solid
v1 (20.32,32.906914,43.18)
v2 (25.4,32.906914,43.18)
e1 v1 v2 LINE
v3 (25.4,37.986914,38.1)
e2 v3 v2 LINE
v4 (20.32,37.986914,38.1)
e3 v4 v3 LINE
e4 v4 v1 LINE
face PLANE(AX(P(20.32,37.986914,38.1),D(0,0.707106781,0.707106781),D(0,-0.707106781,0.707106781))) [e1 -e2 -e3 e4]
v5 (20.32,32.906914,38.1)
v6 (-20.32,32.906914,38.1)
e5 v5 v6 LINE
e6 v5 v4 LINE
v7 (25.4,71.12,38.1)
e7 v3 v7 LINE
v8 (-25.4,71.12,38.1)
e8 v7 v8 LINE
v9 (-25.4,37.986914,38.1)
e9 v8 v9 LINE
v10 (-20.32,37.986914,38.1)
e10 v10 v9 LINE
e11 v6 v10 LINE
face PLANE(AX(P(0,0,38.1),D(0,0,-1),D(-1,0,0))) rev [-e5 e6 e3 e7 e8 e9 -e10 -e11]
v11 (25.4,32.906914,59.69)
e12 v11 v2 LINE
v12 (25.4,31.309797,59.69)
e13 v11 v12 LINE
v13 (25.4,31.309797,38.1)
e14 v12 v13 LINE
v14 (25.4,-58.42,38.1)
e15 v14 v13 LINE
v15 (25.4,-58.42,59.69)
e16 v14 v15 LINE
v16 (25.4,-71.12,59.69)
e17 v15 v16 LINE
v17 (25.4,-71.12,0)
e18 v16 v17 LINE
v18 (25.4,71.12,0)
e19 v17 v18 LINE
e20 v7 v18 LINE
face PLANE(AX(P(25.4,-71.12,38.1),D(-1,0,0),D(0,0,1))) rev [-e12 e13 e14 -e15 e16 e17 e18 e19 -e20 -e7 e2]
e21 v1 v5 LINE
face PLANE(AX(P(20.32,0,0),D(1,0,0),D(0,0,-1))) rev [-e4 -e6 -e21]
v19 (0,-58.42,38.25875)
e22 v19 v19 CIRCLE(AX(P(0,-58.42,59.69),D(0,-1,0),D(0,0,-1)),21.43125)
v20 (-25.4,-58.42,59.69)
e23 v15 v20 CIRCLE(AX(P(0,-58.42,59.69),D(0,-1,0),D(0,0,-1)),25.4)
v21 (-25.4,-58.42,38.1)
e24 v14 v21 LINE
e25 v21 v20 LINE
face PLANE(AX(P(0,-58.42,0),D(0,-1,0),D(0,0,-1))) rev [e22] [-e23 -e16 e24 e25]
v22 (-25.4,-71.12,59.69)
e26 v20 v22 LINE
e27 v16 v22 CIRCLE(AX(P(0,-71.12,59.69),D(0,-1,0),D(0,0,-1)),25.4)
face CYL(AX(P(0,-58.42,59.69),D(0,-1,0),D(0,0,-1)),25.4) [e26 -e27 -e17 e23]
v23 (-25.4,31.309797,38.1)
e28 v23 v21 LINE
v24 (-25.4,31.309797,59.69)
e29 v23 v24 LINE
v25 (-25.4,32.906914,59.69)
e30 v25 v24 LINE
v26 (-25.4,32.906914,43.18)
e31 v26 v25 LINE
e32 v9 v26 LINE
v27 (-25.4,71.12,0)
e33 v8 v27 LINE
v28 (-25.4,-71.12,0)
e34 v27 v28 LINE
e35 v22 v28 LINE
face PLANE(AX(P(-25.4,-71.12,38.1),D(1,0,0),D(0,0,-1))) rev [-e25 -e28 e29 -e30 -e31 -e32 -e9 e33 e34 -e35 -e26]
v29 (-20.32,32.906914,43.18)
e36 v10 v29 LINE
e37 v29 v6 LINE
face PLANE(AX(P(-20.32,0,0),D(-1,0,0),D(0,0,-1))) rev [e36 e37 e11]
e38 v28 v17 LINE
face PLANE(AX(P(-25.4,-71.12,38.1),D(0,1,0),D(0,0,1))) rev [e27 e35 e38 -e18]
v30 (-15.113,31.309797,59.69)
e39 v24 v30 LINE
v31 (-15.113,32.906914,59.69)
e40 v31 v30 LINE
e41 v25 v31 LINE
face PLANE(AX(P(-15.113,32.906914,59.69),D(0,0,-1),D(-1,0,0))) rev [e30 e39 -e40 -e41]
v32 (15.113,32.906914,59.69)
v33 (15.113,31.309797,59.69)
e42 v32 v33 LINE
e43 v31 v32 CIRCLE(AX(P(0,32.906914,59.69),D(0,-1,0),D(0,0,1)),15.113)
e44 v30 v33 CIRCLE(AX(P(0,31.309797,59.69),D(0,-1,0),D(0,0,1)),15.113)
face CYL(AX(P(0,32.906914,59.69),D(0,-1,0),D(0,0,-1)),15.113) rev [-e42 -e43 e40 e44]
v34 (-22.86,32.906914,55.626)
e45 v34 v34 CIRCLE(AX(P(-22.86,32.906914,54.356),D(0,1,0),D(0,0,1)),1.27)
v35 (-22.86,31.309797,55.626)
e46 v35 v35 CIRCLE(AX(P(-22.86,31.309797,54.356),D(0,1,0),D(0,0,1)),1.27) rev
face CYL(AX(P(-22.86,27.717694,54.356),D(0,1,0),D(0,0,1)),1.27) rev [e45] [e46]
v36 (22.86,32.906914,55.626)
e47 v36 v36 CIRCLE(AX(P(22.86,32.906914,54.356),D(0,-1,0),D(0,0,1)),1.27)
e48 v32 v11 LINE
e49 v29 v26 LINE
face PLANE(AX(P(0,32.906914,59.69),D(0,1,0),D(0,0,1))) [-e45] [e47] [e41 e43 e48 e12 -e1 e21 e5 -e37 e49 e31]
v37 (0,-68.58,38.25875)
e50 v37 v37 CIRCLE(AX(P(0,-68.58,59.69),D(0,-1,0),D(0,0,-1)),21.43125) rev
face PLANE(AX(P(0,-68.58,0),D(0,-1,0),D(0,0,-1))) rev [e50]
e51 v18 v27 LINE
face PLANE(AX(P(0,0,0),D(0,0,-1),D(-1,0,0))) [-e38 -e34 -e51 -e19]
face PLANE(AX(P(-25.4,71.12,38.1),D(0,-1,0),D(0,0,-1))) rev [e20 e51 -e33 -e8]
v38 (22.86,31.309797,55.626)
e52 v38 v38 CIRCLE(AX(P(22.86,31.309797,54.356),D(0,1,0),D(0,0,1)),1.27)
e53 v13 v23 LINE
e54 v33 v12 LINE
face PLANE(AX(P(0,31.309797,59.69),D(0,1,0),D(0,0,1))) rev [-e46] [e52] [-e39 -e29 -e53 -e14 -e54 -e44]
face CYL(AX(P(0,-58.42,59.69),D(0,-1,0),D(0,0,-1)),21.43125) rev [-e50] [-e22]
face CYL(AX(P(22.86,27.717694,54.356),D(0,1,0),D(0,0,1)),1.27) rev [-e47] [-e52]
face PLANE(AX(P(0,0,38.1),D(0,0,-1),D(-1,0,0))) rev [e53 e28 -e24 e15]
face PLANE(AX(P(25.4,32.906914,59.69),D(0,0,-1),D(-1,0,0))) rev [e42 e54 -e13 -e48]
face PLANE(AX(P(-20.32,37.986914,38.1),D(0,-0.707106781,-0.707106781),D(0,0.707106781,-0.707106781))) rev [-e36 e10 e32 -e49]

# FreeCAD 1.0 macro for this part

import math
import FreeCAD as App
import Part
import Sketcher
from FreeCAD import Vector
Q = App.Units.Quantity

doc = App.newDocument("Part")
body = doc.addObject("PartDesign::Body", "Body")

sketch1 = body.newObject("Sketcher::SketchObject", "Sketch")
sketch1.AttachmentSupport = (doc.getObject("XY_Plane"), [""])
sketch1.MapMode = "FlatFace"
sketch1.addGeometry([
    Part.LineSegment(Vector(-25, 71, 0), Vector(-25, -71, 0)),
    Part.LineSegment(Vector(-25, -71, 0), Vector(25, -71, 0)),
    Part.LineSegment(Vector(25, -71, 0), Vector(25, 71, 0)),
    Part.LineSegment(Vector(25, 71, 0), Vector(-25, 71, 0)),
], False)
sketch1.addConstraint([
    Sketcher.Constraint("Coincident", 0, 2, 1, 1),
    Sketcher.Constraint("Coincident", 1, 2, 2, 1),
    Sketcher.Constraint("Coincident", 2, 2, 3, 1),
    Sketcher.Constraint("Coincident", 3, 2, 0, 1),
    Sketcher.Constraint("Vertical", 0),
    Sketcher.Constraint("Horizontal", 1),
    Sketcher.Constraint("Vertical", 2),
    Sketcher.Constraint("Horizontal", 3),
    Sketcher.Constraint("Symmetric", 0, 2, 2, 2, -1, 1),
    Sketcher.Constraint("DistanceX", 1, 1, 1, 2, Q("2 in")),
    Sketcher.Constraint("DistanceY", 0, 2, 0, 1, Q("5.6 in")),
])
pad1 = body.newObject("PartDesign::Pad", "Pad")
pad1.Profile = sketch1
pad1.Length = Q("1.5 in")
body2 = doc.addObject("PartDesign::Body", "Body001")

sketch2 = body2.newObject("Sketcher::SketchObject", "Sketch001")
sketch2.AttachmentSupport = (doc.getObject("XZ_Plane001"), [""])
sketch2.MapMode = "FlatFace"
sketch2.AttachmentOffset = App.Placement(Vector(0, 0, 2.8 * 25.4), App.Rotation())
sketch2.addGeometry([
    Part.LineSegment(Vector(-25, 38, 0), Vector(25, 38, 0)),
    Part.LineSegment(Vector(25, 38, 0), Vector(25, 60, 0)),
    Part.ArcOfCircle(Part.Circle(Vector(0, 60, 0), Vector(0, 0, 1), 25), math.radians(0), math.radians(180)),
    Part.LineSegment(Vector(-25, 60, 0), Vector(-25, 38, 0)),
], False)
sketch2.addConstraint([
    Sketcher.Constraint("Coincident", 0, 2, 1, 1),
    Sketcher.Constraint("Tangent", 1, 2, 2, 1),
    Sketcher.Constraint("Tangent", 2, 2, 3, 1),
    Sketcher.Constraint("Coincident", 3, 2, 0, 1),
    Sketcher.Constraint("Horizontal", 0),
    Sketcher.Constraint("Vertical", 1),
    Sketcher.Constraint("Vertical", 3),
    Sketcher.Constraint("PointOnObject", 2, 3, -2),
    Sketcher.Constraint("Radius", 2, Q("1 in")),
    Sketcher.Constraint("DistanceY", 1, 1, 1, 2, Q("0.85 in")),
    Sketcher.Constraint("DistanceY", -1, 1, 0, 2, Q("1.5 in")),
])
pad2 = body2.newObject("PartDesign::Pad", "Pad001")
pad2.Profile = sketch2
pad2.Length = Q("0.1 in")
pad2.Reversed = True
doc.recompute()

boolean = body.newObject("PartDesign::Boolean", "Boolean")
boolean.Type = "Fuse"
boolean.addObjects([body2])

sketch3 = body.newObject("Sketcher::SketchObject", "Sketch002")
sketch3.AttachmentSupport = (doc.getObject("XZ_Plane"), [""])
sketch3.MapMode = "FlatFace"
sketch3.AttachmentOffset = App.Placement(Vector(0, 0, 2.8 * 25.4), App.Rotation())
sketch3.addGeometry([
    Part.LineSegment(Vector(25, 38, 0), Vector(25, 60, 0)),
    Part.ArcOfCircle(Part.Circle(Vector(0, 60, 0), Vector(0, 0, 1), 25), math.radians(0), math.radians(180)),
    Part.LineSegment(Vector(-25, 60, 0), Vector(-25, 38, 0)),
    Part.LineSegment(Vector(-25, 38, 0), Vector(25, 38, 0)),
    Part.Circle(Vector(0, 60, 0), Vector(0, 0, 1), 21),
], False)
sketch3.addConstraint([
    Sketcher.Constraint("Tangent", 0, 2, 1, 1),
    Sketcher.Constraint("Tangent", 1, 2, 2, 1),
    Sketcher.Constraint("Coincident", 2, 2, 3, 1),
    Sketcher.Constraint("Coincident", 3, 2, 0, 1),
    Sketcher.Constraint("Vertical", 0),
    Sketcher.Constraint("Vertical", 2),
    Sketcher.Constraint("Horizontal", 3),
    Sketcher.Constraint("Coincident", 4, 3, 1, 3),
    Sketcher.Constraint("PointOnObject", 1, 3, -2),
    Sketcher.Constraint("Radius", 1, Q("1 in")),
    Sketcher.Constraint("Diameter", 4, Q("1.6875 in")),
    Sketcher.Constraint("DistanceY", 0, 1, 0, 2, Q("0.85 in")),
    Sketcher.Constraint("DistanceY", -1, 1, 2, 2, Q("1.5 in")),
])
pad3 = body.newObject("PartDesign::Pad", "Pad002")
pad3.Profile = sketch3
pad3.Length = Q("0.5 in")
pad3.Reversed = True

sketch4 = body.newObject("Sketcher::SketchObject", "Sketch003")
sketch4.AttachmentSupport = (doc.getObject("XZ_Plane"), [""])
sketch4.MapMode = "FlatFace"
sketch4.AttachmentOffset = App.Placement(Vector(0, 0, -32.108355), App.Rotation())
sketch4.addGeometry([
    Part.LineSegment(Vector(-25, 60, 0), Vector(-15, 60, 0)),
    Part.ArcOfCircle(Part.Circle(Vector(0, 60, 0), Vector(0, 0, 1), 15), math.radians(180), math.radians(360)),
    Part.LineSegment(Vector(15, 60, 0), Vector(25, 60, 0)),
    Part.LineSegment(Vector(25, 60, 0), Vector(25, 38, 0)),
    Part.LineSegment(Vector(25, 38, 0), Vector(-25, 38, 0)),
    Part.LineSegment(Vector(-25, 38, 0), Vector(-25, 60, 0)),
], False)
sketch4.addConstraint([
    Sketcher.Constraint("Coincident", 0, 2, 1, 1),
    Sketcher.Constraint("Coincident", 1, 2, 2, 1),
    Sketcher.Constraint("Coincident", 2, 2, 3, 1),
    Sketcher.Constraint("Coincident", 3, 2, 4, 1),
    Sketcher.Constraint("Coincident", 4, 2, 5, 1),
    Sketcher.Constraint("Coincident", 5, 2, 0, 1),
    Sketcher.Constraint("Horizontal", 0),
    Sketcher.Constraint("Horizontal", 2),
    Sketcher.Constraint("Vertical", 3),
    Sketcher.Constraint("Horizontal", 4),
    Sketcher.Constraint("Vertical", 5),
    Sketcher.Constraint("Symmetric", 0, 2, 1, 2, -2),
    Sketcher.Constraint("Horizontal", 1, 3, 0, 2),
    Sketcher.Constraint("Equal", 0, 2),
    Sketcher.Constraint("DistanceX", 4, 2, 4, 1, Q("2 in")),
    Sketcher.Constraint("Radius", 1, Q("0.595 in")),
    Sketcher.Constraint("DistanceY", 3, 2, 3, 1, Q("0.85 in")),
    Sketcher.Constraint("DistanceY", -1, 1, 3, 2, Q("1.5 in")),
])
pad4 = body.newObject("PartDesign::Pad", "Pad003")
pad4.Profile = sketch4
pad4.Length = 1.597117
pad4.Midplane = True

sketch5 = body.newObject("Sketcher::SketchObject", "Sketch004")
sketch5.AttachmentSupport = (doc.getObject("XZ_Plane"), [""])
sketch5.MapMode = "FlatFace"
sketch5.AttachmentOffset = App.Placement(Vector(0, 0, -32.906914), App.Rotation())
sketch5.addGeometry(Part.Circle(Vector(-22.9, 54.4, 0), Vector(0, 0, 1), 1.3), False)
sketch5.addConstraint([
    Sketcher.Constraint("Diameter", 0, Q("0.1 in")),
    Sketcher.Constraint("DistanceX", 0, 3, -1, 1, Q("0.9 in")),
    Sketcher.Constraint("DistanceY", -1, 1, 0, 3, Q("2.14 in")),
])
pocket1 = body.newObject("PartDesign::Pocket", "Pocket")
pocket1.Profile = sketch5
pocket1.Length = 1.597117
pocket1.Reversed = True
doc.recompute()

mirrored = body.newObject("PartDesign::Mirrored", "Mirrored")
mirrored.Originals = [pocket1]
mirrored.MirrorPlane = (doc.getObject("YZ_Plane"), [""])
body.Tip = mirrored

sketch6 = body.newObject("Sketcher::SketchObject", "Sketch005")
sketch6.AttachmentSupport = (doc.getObject("YZ_Plane"), [""])
sketch6.MapMode = "FlatFace"
sketch6.AttachmentOffset = App.Placement(Vector(0, 0, 1 * 25.4), App.Rotation())
sketch6.addGeometry([
    Part.LineSegment(Vector(33, 38, 0), Vector(38, 38, 0)),
    Part.LineSegment(Vector(38, 38, 0), Vector(33, 43, 0)),
    Part.LineSegment(Vector(33, 43, 0), Vector(33, 38, 0)),
], False)
sketch6.addConstraint([
    Sketcher.Constraint("Coincident", 0, 2, 1, 1),
    Sketcher.Constraint("Coincident", 1, 2, 2, 1),
    Sketcher.Constraint("Coincident", 2, 2, 0, 1),
    Sketcher.Constraint("Horizontal", 0),
    Sketcher.Constraint("Vertical", 2),
    Sketcher.Constraint("Equal", 0, 2),
    Sketcher.Constraint("DistanceX", 0, 1, 0, 2, Q("0.2 in")),
    Sketcher.Constraint("DistanceY", -1, 1, 0, 2, Q("1.5 in")),
    Sketcher.Constraint("DistanceX", -1, 1, 0, 2, Q("37.986914 mm")),
])
pad5 = body.newObject("PartDesign::Pad", "Pad004")
pad5.Profile = sketch6
pad5.Length = Q("0.2 in")
pad5.Reversed = True
doc.recompute()

mirrored2 = body.newObject("PartDesign::Mirrored", "Mirrored001")
mirrored2.Originals = [pad5]
mirrored2.MirrorPlane = (doc.getObject("YZ_Plane"), [""])
body.Tip = mirrored2

doc.recompute()
